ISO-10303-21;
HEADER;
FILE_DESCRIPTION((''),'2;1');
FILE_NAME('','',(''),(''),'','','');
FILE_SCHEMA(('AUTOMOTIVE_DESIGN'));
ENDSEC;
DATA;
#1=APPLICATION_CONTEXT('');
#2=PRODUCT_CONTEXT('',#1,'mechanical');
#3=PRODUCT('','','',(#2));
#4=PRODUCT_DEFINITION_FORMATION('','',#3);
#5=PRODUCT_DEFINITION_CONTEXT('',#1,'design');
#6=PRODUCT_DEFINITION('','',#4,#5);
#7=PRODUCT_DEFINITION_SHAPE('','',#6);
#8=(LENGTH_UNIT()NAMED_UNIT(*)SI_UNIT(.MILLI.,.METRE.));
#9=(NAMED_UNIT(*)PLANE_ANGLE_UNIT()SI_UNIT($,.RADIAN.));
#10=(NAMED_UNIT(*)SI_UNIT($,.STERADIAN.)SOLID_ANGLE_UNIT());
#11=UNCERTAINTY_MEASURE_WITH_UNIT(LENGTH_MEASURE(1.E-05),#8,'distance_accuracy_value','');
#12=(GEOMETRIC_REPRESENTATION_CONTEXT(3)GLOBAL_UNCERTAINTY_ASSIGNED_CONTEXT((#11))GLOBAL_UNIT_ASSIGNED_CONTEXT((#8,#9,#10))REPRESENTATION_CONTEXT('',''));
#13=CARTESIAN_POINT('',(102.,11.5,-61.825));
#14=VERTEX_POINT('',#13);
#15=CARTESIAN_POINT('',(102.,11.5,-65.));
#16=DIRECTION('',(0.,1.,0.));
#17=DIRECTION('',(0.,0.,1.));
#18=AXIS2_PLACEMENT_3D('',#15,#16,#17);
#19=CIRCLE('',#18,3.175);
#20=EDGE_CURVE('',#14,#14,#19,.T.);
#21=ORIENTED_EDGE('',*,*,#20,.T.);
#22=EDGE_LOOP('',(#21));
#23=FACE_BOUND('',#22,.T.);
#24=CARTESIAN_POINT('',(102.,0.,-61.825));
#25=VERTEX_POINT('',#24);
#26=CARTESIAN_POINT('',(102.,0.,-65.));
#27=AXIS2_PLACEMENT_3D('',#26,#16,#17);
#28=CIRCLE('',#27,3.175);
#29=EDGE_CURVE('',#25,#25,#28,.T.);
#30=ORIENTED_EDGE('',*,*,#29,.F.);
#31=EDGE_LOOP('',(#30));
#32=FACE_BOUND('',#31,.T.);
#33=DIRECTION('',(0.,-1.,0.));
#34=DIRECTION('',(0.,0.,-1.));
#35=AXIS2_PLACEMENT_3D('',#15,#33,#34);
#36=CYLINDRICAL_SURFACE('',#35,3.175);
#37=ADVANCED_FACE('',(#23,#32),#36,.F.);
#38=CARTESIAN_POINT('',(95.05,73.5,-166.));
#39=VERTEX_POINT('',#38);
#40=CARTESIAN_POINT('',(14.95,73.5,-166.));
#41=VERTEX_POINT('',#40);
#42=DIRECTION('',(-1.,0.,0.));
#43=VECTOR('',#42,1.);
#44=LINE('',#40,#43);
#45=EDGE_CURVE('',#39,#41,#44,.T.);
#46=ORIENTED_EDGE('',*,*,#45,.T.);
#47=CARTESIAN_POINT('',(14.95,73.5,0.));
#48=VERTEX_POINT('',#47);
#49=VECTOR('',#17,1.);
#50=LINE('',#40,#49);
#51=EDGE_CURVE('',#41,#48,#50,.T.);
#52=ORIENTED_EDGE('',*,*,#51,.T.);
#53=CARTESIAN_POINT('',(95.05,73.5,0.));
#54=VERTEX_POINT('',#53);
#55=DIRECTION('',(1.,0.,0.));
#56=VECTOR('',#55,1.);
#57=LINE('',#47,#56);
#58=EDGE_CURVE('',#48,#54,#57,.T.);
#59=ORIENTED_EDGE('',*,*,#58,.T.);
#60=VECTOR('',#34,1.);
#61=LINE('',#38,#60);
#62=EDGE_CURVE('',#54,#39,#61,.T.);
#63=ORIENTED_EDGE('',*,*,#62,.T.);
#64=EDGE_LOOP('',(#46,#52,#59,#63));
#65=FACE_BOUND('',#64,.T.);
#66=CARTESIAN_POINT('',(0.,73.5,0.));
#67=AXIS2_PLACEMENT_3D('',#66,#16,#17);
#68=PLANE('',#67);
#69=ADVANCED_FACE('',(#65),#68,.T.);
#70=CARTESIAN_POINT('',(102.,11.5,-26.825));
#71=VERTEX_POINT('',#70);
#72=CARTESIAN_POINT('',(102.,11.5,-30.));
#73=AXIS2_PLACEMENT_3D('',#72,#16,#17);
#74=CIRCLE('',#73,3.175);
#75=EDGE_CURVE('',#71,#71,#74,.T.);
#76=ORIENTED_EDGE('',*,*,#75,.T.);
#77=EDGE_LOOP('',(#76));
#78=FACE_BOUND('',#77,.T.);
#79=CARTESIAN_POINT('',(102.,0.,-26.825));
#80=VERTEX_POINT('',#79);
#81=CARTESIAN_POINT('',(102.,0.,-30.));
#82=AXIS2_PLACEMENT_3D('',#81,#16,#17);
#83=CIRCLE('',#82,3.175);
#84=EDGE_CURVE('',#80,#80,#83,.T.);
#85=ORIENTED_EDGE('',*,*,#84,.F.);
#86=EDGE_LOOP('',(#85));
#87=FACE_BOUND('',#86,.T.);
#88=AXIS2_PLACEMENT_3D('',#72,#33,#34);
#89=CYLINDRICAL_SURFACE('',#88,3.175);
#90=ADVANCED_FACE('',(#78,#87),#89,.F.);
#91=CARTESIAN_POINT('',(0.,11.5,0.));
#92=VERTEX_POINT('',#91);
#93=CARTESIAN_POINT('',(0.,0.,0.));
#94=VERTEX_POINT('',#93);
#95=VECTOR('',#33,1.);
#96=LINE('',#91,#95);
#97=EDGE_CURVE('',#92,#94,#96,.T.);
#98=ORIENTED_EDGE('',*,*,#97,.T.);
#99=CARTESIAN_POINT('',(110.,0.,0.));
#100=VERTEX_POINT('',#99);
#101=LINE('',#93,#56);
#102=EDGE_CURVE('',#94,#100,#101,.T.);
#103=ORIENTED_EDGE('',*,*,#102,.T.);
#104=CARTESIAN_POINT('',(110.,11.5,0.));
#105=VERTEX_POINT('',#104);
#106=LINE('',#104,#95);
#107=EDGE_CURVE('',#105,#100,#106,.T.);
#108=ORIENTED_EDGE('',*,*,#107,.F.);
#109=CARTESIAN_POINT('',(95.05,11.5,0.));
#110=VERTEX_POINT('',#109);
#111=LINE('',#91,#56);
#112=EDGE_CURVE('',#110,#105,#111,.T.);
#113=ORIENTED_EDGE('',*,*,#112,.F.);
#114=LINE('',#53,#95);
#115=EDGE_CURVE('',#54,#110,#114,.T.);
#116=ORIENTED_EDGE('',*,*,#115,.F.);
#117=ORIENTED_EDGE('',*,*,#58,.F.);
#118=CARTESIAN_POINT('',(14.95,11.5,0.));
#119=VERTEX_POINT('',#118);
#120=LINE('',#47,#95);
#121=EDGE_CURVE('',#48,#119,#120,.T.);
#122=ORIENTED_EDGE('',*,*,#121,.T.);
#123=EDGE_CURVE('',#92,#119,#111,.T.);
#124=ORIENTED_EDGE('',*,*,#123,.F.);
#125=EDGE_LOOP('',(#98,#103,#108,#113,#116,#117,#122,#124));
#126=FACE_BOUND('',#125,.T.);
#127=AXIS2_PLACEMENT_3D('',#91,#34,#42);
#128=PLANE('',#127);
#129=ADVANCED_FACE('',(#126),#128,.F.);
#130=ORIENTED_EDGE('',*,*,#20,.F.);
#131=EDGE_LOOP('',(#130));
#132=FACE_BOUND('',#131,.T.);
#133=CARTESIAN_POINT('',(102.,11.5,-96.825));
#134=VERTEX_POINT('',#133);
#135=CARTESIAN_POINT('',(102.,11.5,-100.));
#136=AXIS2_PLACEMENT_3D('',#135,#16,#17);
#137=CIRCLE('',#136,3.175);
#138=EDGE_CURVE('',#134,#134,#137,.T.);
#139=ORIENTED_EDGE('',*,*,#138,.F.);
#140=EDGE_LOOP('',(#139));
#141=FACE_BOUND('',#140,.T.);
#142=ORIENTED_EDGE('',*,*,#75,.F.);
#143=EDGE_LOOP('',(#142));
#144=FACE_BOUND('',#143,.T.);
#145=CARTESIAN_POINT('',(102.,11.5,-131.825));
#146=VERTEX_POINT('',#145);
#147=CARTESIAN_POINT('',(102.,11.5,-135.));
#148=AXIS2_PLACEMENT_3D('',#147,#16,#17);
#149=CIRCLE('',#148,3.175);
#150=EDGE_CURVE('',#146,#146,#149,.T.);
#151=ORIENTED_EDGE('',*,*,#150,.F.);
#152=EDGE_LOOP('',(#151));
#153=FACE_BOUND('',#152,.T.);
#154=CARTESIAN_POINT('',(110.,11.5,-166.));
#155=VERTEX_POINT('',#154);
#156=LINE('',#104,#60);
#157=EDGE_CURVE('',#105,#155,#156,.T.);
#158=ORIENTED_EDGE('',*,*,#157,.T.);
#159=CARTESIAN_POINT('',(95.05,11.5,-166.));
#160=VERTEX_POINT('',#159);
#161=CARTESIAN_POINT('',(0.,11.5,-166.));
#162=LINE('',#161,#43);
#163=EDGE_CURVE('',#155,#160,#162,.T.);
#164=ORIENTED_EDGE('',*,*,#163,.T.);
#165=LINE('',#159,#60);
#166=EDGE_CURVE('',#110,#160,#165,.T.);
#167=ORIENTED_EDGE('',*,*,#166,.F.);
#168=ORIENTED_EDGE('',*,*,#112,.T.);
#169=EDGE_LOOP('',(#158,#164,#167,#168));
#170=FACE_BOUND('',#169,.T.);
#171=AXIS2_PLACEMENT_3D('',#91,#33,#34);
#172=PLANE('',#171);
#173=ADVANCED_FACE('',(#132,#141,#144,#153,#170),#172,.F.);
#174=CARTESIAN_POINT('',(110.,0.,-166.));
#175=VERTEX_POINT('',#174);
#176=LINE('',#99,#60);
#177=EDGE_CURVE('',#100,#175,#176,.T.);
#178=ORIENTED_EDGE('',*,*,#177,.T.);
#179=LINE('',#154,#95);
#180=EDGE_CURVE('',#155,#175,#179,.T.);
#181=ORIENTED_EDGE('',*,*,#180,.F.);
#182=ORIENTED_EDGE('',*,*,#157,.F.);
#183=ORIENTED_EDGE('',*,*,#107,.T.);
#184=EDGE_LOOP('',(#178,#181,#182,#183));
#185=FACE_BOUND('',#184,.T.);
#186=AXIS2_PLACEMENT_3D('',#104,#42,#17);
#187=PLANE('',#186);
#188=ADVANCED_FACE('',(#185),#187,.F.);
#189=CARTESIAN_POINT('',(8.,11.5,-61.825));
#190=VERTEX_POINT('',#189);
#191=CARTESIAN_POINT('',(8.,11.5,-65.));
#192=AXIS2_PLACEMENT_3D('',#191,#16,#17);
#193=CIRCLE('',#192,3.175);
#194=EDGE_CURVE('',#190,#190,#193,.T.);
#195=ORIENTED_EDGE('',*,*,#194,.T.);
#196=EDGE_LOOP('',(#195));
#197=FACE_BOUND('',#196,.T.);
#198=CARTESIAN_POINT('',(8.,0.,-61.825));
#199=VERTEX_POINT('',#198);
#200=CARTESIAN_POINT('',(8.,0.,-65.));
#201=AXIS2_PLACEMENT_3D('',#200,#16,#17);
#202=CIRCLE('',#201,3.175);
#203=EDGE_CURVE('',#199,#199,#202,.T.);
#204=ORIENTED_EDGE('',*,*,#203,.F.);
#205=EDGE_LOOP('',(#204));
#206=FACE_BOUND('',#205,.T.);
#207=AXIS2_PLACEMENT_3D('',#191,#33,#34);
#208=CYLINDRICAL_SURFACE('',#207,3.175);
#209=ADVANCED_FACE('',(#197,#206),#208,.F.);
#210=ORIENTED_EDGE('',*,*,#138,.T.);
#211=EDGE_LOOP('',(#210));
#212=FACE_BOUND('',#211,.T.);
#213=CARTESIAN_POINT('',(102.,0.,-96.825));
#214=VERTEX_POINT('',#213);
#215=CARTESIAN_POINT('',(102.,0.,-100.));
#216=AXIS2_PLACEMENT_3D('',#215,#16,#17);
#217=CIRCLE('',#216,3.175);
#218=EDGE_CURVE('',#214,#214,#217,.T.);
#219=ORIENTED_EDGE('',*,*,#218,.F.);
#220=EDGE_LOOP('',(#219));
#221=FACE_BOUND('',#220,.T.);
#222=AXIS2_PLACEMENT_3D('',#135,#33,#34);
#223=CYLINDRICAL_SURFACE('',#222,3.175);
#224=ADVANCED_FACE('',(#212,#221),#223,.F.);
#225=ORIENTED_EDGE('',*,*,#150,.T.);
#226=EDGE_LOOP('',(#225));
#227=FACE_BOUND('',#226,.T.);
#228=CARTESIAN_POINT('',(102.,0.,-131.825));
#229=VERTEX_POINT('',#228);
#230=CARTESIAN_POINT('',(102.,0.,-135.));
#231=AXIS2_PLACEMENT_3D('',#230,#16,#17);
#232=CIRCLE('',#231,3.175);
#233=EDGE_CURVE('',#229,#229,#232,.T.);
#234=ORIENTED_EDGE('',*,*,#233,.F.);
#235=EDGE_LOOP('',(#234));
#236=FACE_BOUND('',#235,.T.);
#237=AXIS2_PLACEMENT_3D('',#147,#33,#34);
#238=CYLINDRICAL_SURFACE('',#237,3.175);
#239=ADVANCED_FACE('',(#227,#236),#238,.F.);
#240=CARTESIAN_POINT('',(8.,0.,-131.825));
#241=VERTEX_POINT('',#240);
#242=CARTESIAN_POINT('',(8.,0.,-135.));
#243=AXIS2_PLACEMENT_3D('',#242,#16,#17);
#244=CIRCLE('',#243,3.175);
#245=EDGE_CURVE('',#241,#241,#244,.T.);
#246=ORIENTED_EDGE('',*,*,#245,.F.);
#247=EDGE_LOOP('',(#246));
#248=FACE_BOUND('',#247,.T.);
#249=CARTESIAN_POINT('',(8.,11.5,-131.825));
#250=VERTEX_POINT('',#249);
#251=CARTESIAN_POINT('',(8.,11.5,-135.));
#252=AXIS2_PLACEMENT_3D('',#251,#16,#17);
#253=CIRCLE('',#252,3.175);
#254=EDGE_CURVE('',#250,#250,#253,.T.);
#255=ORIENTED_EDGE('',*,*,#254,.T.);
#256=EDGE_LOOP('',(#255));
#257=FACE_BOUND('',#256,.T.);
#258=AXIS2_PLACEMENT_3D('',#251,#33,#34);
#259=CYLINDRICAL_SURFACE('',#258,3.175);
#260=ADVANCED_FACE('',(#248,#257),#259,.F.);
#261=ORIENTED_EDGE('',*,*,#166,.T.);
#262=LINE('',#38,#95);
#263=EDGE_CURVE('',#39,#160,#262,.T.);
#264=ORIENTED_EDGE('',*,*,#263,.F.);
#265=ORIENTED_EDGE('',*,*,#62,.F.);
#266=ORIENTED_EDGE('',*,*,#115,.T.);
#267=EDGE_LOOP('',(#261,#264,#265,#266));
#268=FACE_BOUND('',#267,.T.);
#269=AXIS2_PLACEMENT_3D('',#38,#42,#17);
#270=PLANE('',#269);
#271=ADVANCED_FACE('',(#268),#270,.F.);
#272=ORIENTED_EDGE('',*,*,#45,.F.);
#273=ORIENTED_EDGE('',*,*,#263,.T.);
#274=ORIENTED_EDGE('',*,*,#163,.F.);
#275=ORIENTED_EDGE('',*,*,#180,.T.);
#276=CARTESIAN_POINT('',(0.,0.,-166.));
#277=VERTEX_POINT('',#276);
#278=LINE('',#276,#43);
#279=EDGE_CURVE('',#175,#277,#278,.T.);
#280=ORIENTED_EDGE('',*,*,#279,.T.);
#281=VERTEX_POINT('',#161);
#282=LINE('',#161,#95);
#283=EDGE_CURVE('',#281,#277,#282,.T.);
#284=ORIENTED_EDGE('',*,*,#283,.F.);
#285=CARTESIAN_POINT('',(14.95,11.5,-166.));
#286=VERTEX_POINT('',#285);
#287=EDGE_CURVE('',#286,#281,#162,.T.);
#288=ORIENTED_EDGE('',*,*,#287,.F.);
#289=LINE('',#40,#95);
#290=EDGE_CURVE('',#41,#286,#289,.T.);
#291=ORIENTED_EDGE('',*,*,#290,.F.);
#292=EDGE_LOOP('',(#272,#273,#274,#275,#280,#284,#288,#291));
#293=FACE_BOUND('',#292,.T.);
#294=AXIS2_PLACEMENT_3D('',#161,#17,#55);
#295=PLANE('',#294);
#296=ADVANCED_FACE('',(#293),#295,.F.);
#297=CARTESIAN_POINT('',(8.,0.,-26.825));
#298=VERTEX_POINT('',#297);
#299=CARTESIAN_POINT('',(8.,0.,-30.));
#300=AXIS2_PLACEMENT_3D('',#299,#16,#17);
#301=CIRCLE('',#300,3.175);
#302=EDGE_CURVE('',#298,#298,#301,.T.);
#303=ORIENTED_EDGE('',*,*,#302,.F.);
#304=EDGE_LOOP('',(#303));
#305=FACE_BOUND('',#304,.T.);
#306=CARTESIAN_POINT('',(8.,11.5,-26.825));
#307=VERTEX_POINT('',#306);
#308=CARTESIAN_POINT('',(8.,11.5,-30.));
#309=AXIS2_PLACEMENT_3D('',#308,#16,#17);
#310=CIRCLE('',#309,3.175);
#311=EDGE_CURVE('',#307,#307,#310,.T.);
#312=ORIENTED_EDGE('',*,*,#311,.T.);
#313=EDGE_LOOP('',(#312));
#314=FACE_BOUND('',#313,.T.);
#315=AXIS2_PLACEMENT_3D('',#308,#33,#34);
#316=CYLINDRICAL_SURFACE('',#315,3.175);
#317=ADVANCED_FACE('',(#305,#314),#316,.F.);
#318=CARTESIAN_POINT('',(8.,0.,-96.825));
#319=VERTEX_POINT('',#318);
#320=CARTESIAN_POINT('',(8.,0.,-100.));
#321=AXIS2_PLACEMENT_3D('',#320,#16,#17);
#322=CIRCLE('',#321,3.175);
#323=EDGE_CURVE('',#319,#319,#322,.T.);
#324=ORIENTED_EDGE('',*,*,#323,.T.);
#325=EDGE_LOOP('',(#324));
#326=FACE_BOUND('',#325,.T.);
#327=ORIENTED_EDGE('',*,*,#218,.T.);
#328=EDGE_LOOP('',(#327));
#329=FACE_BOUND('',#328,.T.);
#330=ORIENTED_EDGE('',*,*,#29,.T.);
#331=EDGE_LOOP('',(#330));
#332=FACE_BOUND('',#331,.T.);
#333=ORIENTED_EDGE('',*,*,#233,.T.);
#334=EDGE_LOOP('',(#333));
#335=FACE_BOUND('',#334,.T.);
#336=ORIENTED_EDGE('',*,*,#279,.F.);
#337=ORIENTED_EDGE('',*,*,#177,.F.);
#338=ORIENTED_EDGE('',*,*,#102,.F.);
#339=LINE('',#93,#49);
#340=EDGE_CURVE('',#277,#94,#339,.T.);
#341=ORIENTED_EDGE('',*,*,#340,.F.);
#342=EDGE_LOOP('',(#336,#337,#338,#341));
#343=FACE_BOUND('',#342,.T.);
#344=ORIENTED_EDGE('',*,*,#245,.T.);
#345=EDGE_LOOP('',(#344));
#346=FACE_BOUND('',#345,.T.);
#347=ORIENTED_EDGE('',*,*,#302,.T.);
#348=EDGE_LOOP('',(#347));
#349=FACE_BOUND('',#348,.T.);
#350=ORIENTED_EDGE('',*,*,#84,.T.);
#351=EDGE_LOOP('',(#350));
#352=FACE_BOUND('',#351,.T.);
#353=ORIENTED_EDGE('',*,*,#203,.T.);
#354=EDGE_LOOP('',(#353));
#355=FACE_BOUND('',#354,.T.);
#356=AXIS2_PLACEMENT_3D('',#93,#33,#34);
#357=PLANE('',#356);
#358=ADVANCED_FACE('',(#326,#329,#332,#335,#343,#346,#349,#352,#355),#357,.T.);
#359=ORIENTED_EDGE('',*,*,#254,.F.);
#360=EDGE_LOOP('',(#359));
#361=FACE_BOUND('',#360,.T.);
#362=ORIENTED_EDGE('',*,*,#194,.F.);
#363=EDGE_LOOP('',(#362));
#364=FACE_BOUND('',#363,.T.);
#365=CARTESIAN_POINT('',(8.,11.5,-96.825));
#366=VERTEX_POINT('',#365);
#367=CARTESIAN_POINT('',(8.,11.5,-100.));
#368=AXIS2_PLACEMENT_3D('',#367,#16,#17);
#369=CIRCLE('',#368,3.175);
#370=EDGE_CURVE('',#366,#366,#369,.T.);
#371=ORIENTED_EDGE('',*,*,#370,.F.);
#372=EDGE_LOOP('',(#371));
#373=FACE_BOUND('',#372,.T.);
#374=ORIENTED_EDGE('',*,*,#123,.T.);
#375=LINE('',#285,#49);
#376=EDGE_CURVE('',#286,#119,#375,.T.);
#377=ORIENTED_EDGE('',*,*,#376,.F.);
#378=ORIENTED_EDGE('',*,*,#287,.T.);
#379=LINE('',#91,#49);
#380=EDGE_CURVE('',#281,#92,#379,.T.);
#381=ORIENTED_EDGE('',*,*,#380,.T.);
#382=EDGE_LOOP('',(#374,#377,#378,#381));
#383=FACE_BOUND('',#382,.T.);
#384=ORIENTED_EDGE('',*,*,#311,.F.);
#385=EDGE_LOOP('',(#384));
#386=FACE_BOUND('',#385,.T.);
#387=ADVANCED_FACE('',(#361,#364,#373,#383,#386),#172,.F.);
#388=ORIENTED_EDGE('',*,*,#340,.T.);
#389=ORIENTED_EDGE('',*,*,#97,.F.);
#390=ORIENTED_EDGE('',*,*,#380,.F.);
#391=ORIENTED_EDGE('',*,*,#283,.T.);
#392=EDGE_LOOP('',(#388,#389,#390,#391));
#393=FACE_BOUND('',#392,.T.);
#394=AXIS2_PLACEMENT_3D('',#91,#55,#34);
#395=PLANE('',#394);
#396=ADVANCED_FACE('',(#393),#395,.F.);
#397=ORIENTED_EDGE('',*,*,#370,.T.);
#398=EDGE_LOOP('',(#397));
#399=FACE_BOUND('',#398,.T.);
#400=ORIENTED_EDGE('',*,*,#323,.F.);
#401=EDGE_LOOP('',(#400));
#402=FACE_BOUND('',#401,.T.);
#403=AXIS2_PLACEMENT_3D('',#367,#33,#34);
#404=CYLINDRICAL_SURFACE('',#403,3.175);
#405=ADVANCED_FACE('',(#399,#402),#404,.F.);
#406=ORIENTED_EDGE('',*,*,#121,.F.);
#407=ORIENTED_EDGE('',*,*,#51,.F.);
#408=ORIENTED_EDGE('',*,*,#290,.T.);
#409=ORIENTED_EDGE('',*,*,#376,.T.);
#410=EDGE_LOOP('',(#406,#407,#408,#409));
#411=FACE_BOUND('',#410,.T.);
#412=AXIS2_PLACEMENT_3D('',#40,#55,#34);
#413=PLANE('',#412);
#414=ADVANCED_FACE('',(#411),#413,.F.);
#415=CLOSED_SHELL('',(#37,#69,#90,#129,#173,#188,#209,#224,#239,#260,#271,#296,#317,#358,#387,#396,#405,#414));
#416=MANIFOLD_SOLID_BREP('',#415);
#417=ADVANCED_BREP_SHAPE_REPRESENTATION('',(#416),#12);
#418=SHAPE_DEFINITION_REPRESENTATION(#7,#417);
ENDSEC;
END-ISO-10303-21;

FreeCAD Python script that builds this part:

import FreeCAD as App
import Part
import Sketcher

V = App.Vector

doc = App.newDocument("Part")
body = doc.addObject("PartDesign::Body", "Body")

# Sketch on XZ plane
sketch1 = doc.addObject("Sketcher::SketchObject", "Sketch")
body.addObject(sketch1)
sketch1.AttachmentSupport = (doc.XZ_Plane, [""])
sketch1.MapMode = "FlatFace"
sketch1.addGeometry([
    Part.LineSegment(V(0, -166, 0), V(0, 0, 0)),  # 0
    Part.LineSegment(V(0, 0, 0), V(110, 0, 0)),  # 1
    Part.LineSegment(V(110, 0, 0), V(110, -166, 0)),  # 2
    Part.LineSegment(V(110, -166, 0), V(0, -166, 0)),  # 3
    Part.Circle(V(8, -30, 0), V(0, 0, 1), 3.175),  # 4
    Part.Circle(V(8, -65, 0), V(0, 0, 1), 3.175),  # 5
    Part.Circle(V(102, -30, 0), V(0, 0, 1), 3.175),  # 6
    Part.Circle(V(102, -65, 0), V(0, 0, 1), 3.175),  # 7
    Part.Circle(V(8, -100, 0), V(0, 0, 1), 3.175),  # 8
    Part.Circle(V(8, -135, 0), V(0, 0, 1), 3.175),  # 9
    Part.Circle(V(102, -100, 0), V(0, 0, 1), 3.175),  # 10
    Part.Circle(V(102, -135, 0), V(0, 0, 1), 3.175),  # 11
], False)
sketch1.addConstraint([
    Sketcher.Constraint("Coincident", 0, 2, 1, 1),
    Sketcher.Constraint("Coincident", 1, 2, 2, 1),
    Sketcher.Constraint("Coincident", 2, 2, 3, 1),
    Sketcher.Constraint("Coincident", 3, 2, 0, 1),
    Sketcher.Constraint("Vertical", 0),
    Sketcher.Constraint("Horizontal", 1),
    Sketcher.Constraint("Vertical", 2),
    Sketcher.Constraint("Horizontal", 3),
    Sketcher.Constraint("Coincident", 0, 2, -1, 1),
    Sketcher.Constraint("Equal", 4, 5),
    Sketcher.Constraint("Equal", 5, 6),
    Sketcher.Constraint("Equal", 6, 7),
    Sketcher.Constraint("Equal", 7, 8),
    Sketcher.Constraint("Equal", 8, 9),
    Sketcher.Constraint("Equal", 9, 10),
    Sketcher.Constraint("Equal", 10, 11),
    Sketcher.Constraint("Horizontal", 4, 3, 6, 3),
    Sketcher.Constraint("Horizontal", 5, 3, 7, 3),
    Sketcher.Constraint("Horizontal", 8, 3, 10, 3),
    Sketcher.Constraint("Horizontal", 9, 3, 11, 3),
    Sketcher.Constraint("Vertical", 4, 3, 5, 3),
    Sketcher.Constraint("Vertical", 6, 3, 7, 3),
    Sketcher.Constraint("Vertical", 5, 3, 8, 3),
    Sketcher.Constraint("Vertical", 8, 3, 9, 3),
    Sketcher.Constraint("Vertical", 7, 3, 10, 3),
    Sketcher.Constraint("Vertical", 10, 3, 11, 3),
    Sketcher.Constraint("Diameter", 4, 6.35),
    Sketcher.Constraint("DistanceX", 1, 1, 1, 2, 110.0),
    Sketcher.Constraint("DistanceY", 0, 1, 0, 2, 166.0),
    Sketcher.Constraint("DistanceX", -1, 1, 4, 3, 8.0),
    Sketcher.Constraint("DistanceY", 4, 3, -1, 1, 30.0),
    Sketcher.Constraint("DistanceY", 5, 3, -1, 1, 65.0),
    Sketcher.Constraint("DistanceX", -1, 1, 6, 3, 102.0),
    Sketcher.Constraint("DistanceY", 8, 3, -1, 1, 100.0),
    Sketcher.Constraint("DistanceY", 9, 3, -1, 1, 135.0),
])
pad1 = doc.addObject("PartDesign::Pad", "Pad")
body.addObject(pad1)
pad1.Profile = sketch1
pad1.Length = 11.5
pad1.Reversed = True

# Sketch on XZ plane
sketch2 = doc.addObject("Sketcher::SketchObject", "Sketch001")
body.addObject(sketch2)
sketch2.AttachmentSupport = (doc.XZ_Plane, [""])
sketch2.MapMode = "FlatFace"
sketch2.AttachmentOffset = App.Placement(V(0, 0, -11.5), App.Rotation())
sketch2.addGeometry([
    Part.LineSegment(V(14.95, -166, 0), V(14.95, 0, 0)),
    Part.LineSegment(V(14.95, 0, 0), V(95.05, 0, 0)),
    Part.LineSegment(V(95.05, 0, 0), V(95.05, -166, 0)),
    Part.LineSegment(V(95.05, -166, 0), V(14.95, -166, 0)),
], False)
sketch2.addConstraint([
    Sketcher.Constraint("Coincident", 0, 2, 1, 1),
    Sketcher.Constraint("Coincident", 1, 2, 2, 1),
    Sketcher.Constraint("Coincident", 2, 2, 3, 1),
    Sketcher.Constraint("Coincident", 3, 2, 0, 1),
    Sketcher.Constraint("Vertical", 0),
    Sketcher.Constraint("Horizontal", 1),
    Sketcher.Constraint("Vertical", 2),
    Sketcher.Constraint("Horizontal", 3),
    Sketcher.Constraint("PointOnObject", 0, 2, -1),
    Sketcher.Constraint("DistanceY", 0, 1, 0, 2, 166.0),
    Sketcher.Constraint("DistanceX", 1, 1, 1, 2, 80.1),
    Sketcher.Constraint("DistanceX", -1, 1, 0, 2, 14.95),
])
pad2 = doc.addObject("PartDesign::Pad", "Pad001")
body.addObject(pad2)
pad2.Profile = sketch2
pad2.Length = 62
pad2.Reversed = True

doc.recompute()
